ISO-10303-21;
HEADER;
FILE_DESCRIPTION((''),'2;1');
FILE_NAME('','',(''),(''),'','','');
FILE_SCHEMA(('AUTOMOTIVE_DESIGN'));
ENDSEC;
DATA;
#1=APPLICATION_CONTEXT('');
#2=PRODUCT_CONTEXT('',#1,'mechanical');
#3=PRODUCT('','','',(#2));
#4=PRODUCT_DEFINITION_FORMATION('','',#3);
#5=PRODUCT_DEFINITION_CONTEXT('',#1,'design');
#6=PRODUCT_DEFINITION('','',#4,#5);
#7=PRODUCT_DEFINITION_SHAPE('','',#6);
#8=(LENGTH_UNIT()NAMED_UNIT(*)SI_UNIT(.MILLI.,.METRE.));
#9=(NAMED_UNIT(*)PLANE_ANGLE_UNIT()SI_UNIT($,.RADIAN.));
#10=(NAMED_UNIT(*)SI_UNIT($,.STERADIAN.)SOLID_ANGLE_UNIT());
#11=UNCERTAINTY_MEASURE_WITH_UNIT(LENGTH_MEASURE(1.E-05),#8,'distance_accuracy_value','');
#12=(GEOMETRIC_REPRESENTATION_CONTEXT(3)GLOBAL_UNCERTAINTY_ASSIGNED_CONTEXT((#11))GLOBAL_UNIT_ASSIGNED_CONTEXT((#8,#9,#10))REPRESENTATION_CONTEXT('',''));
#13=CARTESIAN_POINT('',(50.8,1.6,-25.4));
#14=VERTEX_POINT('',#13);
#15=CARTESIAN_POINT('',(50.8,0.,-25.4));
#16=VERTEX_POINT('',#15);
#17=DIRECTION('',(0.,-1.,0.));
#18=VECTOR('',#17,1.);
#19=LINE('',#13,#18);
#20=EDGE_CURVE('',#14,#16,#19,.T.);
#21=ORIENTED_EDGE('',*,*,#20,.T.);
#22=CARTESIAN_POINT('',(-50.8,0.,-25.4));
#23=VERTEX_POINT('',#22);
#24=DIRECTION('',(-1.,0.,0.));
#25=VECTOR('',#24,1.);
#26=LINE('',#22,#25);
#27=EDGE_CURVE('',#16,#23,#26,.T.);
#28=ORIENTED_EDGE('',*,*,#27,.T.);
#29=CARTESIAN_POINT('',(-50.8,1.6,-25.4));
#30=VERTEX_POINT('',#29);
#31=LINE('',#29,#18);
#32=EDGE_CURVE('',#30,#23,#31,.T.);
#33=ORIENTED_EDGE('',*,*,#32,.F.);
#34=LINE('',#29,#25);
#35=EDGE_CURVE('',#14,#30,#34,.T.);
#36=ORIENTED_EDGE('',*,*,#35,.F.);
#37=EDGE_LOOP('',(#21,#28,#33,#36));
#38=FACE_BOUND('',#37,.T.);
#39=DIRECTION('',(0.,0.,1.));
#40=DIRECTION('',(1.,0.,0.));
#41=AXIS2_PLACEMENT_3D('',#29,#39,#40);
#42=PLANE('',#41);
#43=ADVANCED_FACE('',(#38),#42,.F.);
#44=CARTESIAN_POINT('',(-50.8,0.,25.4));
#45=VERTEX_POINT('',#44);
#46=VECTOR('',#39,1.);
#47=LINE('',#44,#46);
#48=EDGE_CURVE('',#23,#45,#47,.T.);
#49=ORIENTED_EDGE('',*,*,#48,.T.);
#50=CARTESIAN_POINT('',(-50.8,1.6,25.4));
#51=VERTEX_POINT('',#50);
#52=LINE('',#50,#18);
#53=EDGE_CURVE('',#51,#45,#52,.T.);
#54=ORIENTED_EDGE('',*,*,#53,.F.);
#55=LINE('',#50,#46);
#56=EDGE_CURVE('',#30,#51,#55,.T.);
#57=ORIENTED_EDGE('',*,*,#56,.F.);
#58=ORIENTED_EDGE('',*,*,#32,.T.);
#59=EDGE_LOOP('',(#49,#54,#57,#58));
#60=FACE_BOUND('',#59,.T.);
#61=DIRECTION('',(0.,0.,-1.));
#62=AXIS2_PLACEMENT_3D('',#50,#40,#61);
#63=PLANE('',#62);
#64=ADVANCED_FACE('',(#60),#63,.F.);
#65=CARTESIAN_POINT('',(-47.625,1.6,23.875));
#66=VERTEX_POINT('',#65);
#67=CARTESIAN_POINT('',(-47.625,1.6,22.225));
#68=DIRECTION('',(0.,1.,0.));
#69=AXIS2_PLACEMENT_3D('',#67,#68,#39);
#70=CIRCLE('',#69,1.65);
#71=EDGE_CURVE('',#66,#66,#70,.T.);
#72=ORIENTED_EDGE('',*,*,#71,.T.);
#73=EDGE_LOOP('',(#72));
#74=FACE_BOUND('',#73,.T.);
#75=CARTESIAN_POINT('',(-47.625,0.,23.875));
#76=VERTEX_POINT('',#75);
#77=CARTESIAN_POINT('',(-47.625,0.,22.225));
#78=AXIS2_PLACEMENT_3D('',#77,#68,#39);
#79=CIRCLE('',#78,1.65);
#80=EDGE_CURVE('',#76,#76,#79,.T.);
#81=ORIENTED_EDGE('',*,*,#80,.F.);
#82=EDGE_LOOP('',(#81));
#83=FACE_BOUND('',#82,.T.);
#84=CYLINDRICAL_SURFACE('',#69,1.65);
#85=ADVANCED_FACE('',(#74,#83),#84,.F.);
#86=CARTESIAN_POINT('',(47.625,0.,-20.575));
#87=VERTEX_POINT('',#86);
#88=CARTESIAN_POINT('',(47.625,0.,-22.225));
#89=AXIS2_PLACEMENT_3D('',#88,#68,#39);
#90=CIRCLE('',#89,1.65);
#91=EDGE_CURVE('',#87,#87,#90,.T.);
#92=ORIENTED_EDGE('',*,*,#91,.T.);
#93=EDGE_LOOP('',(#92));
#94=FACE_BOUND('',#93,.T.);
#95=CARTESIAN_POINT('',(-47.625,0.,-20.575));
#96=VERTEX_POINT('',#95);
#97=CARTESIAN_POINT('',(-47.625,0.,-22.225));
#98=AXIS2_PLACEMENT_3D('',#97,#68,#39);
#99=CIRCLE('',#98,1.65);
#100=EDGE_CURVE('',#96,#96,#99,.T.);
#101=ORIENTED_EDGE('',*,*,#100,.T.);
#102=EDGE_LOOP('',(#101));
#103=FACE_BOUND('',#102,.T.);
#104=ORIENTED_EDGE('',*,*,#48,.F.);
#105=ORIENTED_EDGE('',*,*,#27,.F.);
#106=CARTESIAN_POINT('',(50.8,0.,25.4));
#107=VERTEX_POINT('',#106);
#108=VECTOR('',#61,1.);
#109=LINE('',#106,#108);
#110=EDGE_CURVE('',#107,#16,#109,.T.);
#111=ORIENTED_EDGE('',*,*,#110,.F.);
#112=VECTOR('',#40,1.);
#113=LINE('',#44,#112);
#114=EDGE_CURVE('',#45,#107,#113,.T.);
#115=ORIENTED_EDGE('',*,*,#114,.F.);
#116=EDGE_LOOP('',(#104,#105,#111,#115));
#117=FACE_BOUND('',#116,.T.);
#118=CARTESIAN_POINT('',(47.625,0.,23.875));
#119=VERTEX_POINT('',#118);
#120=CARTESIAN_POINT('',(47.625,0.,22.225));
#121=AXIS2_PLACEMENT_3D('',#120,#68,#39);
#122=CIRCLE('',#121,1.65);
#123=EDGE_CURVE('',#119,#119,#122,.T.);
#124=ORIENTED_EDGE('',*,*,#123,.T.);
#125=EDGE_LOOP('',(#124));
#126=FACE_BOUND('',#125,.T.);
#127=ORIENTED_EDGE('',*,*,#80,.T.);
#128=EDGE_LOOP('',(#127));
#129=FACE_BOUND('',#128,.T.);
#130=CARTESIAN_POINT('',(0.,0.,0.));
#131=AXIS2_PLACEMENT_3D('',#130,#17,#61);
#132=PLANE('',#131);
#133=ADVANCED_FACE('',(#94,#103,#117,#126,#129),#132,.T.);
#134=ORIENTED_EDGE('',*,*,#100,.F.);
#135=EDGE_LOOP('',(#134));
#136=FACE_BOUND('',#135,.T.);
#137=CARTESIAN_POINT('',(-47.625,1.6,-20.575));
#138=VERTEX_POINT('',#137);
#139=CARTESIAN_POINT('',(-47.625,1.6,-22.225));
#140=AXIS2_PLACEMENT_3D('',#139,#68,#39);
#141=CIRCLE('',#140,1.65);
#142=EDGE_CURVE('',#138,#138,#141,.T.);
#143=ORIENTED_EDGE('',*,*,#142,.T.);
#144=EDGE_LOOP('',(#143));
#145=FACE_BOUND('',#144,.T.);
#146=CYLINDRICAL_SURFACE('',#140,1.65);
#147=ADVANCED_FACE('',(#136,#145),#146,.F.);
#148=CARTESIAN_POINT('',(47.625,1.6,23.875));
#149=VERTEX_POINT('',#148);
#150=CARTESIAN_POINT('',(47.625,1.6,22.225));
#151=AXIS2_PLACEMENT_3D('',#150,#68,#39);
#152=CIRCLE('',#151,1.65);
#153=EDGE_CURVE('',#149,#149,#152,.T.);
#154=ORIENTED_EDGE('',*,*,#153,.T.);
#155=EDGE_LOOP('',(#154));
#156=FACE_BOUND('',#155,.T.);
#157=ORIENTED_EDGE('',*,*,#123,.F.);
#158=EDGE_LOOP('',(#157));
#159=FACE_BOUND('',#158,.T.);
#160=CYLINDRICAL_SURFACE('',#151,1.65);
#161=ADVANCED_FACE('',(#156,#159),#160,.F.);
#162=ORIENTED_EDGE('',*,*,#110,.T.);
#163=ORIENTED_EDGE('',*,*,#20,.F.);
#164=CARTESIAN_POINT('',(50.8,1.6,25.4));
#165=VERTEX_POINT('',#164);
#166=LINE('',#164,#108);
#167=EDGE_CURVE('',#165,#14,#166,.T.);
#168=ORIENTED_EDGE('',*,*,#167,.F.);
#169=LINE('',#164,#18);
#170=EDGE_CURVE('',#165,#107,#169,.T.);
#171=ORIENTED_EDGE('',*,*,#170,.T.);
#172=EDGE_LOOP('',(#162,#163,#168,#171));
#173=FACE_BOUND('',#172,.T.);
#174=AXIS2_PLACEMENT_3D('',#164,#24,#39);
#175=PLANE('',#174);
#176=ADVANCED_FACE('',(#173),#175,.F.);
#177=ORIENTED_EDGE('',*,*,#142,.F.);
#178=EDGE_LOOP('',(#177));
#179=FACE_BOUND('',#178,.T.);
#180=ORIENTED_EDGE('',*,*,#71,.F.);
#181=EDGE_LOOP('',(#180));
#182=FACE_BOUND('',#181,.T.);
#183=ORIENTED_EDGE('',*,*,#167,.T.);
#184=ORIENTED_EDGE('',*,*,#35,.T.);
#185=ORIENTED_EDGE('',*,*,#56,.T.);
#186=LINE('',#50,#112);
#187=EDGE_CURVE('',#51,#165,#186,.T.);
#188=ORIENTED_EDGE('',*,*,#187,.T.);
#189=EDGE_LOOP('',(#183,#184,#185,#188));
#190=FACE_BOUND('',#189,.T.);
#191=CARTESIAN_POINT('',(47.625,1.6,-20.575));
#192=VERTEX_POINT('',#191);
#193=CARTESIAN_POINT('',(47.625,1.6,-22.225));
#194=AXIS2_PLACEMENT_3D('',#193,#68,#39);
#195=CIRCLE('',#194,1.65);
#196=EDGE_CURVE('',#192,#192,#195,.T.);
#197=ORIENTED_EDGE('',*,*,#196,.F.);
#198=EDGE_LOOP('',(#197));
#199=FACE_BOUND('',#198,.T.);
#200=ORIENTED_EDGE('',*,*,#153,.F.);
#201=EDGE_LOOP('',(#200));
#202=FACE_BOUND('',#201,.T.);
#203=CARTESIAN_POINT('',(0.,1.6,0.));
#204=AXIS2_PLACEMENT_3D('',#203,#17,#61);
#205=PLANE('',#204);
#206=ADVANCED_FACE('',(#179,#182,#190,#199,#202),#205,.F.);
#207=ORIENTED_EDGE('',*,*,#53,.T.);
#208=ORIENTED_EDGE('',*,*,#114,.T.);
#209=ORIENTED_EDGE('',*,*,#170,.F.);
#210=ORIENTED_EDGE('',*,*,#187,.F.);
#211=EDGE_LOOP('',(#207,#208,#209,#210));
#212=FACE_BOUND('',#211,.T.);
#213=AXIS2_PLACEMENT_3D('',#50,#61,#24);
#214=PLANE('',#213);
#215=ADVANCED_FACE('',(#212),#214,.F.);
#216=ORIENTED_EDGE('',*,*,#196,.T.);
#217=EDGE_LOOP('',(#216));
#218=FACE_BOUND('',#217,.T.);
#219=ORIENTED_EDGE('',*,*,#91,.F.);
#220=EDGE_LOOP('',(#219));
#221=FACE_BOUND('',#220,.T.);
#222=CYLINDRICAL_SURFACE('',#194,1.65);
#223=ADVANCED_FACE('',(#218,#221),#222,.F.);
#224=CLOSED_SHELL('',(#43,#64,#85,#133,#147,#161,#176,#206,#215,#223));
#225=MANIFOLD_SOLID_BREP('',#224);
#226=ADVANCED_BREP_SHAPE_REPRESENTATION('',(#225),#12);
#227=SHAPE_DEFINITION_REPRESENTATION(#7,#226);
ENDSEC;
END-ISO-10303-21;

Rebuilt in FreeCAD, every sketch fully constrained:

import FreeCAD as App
import Part
import Sketcher

V = App.Vector


def add_polygon(sketch, points):
    """Adds a closed chain of lines whose ends are joined by coincident constraints."""
    first, n = sketch.GeometryCount, len(points)
    for a, b in zip(points, points[1:] + points[:1]):
        sketch.addGeometry(Part.LineSegment(App.Vector(*a, 0), App.Vector(*b, 0)), False)
    for i in range(n):
        sketch.addConstraint(Sketcher.Constraint("Coincident", first + i, 2, first + (i + 1) % n, 1))

doc = App.newDocument("Part")
params = doc.addObject("Spreadsheet::Sheet", "Params")
for row, (alias, value) in enumerate([
    ("sketch1_width", "101.6 mm"),
    ("sketch1_height", "50.8 mm"),
    ("pad1_length", "1.6 mm"),
    ("sketch2_diameter", "3.3 mm"),
    ("hole_diameter", "3.3 mm"),
], start=1):
    params.set(f"A{row}", alias)
    params.set(f"B{row}", "=" + value)
    params.setAlias(f"B{row}", alias)

body = doc.addObject("PartDesign::Body", "Body")

sketch1 = doc.addObject("Sketcher::SketchObject", "Sketch")
body.addObject(sketch1)
sketch1.AttachmentSupport = (doc.XZ_Plane, [""])
sketch1.MapMode = "FlatFace"
add_polygon(sketch1, [(-51, -25), (-51, 25), (51, 25), (51, -25)])
sketch1.addConstraint(Sketcher.Constraint("Vertical", 0))
sketch1.addConstraint(Sketcher.Constraint("Horizontal", 1))
sketch1.addConstraint(Sketcher.Constraint("Vertical", 2))
sketch1.addConstraint(Sketcher.Constraint("Horizontal", 3))
sketch1.addConstraint(Sketcher.Constraint("Symmetric", 0, 2, 2, 2, -1, 1))
sketch1.addConstraint(Sketcher.Constraint("DistanceX", 1, 1, 1, 2, 101.6))
sketch1.addConstraint(Sketcher.Constraint("DistanceY", 0, 1, 0, 2, 50.8))
sketch1.setExpression("Constraints[9]", "Params.sketch1_width")
sketch1.setExpression("Constraints[10]", "Params.sketch1_height")
pad1 = doc.addObject("PartDesign::Pad", "Pad")
body.addObject(pad1)
pad1.Profile = sketch1
pad1.setExpression("Length", "Params.pad1_length")
pad1.Reversed = True

sketch2 = doc.addObject("Sketcher::SketchObject", "Sketch001")
body.addObject(sketch2)
sketch2.AttachmentSupport = (doc.XZ_Plane, [""])
sketch2.MapMode = "FlatFace"
sketch2.AttachmentOffset = App.Placement(V(0, 0, -1.6), App.Rotation())
sketch2.addGeometry(Part.Circle(V(-47.6, -22.2, 0), V(0, 0, 1), 1.6), False)
sketch2.addGeometry(Part.Circle(V(47.6, -22.2, 0), V(0, 0, 1), 1.6), False)
sketch2.addGeometry(Part.Circle(V(47.6, 22.2, 0), V(0, 0, 1), 1.6), False)
sketch2.addGeometry(Part.Circle(V(-47.6, 22.2, 0), V(0, 0, 1), 1.6), False)
sketch2.addConstraint(Sketcher.Constraint("Equal", 0, 1))
sketch2.addConstraint(Sketcher.Constraint("Equal", 1, 2))
sketch2.addConstraint(Sketcher.Constraint("Equal", 2, 3))
sketch2.addConstraint(Sketcher.Constraint("Symmetric", 0, 3, 2, 3, -1, 1))
sketch2.addConstraint(Sketcher.Constraint("Symmetric", 1, 3, 3, 3, -1, 1))
sketch2.addConstraint(Sketcher.Constraint("Symmetric", 0, 3, 1, 3, -2))
sketch2.addConstraint(Sketcher.Constraint("Diameter", 0, 3.3))
sketch2.addConstraint(Sketcher.Constraint("DistanceX", 0, 3, 1, 3, 95.25))
sketch2.addConstraint(Sketcher.Constraint("DistanceY", 1, 3, 2, 3, 44.45))
sketch2.setExpression("Constraints[6]", "Params.sketch2_diameter")
doc.recompute()
hole = doc.addObject("PartDesign::Hole", "Hole")
body.addObject(hole)
hole.Profile = sketch2
hole.ThreadType = "None"
hole.setExpression("Diameter", "Params.hole_diameter")
hole.DepthType = "ThroughAll"
hole.Reversed = True

doc.recompute()
